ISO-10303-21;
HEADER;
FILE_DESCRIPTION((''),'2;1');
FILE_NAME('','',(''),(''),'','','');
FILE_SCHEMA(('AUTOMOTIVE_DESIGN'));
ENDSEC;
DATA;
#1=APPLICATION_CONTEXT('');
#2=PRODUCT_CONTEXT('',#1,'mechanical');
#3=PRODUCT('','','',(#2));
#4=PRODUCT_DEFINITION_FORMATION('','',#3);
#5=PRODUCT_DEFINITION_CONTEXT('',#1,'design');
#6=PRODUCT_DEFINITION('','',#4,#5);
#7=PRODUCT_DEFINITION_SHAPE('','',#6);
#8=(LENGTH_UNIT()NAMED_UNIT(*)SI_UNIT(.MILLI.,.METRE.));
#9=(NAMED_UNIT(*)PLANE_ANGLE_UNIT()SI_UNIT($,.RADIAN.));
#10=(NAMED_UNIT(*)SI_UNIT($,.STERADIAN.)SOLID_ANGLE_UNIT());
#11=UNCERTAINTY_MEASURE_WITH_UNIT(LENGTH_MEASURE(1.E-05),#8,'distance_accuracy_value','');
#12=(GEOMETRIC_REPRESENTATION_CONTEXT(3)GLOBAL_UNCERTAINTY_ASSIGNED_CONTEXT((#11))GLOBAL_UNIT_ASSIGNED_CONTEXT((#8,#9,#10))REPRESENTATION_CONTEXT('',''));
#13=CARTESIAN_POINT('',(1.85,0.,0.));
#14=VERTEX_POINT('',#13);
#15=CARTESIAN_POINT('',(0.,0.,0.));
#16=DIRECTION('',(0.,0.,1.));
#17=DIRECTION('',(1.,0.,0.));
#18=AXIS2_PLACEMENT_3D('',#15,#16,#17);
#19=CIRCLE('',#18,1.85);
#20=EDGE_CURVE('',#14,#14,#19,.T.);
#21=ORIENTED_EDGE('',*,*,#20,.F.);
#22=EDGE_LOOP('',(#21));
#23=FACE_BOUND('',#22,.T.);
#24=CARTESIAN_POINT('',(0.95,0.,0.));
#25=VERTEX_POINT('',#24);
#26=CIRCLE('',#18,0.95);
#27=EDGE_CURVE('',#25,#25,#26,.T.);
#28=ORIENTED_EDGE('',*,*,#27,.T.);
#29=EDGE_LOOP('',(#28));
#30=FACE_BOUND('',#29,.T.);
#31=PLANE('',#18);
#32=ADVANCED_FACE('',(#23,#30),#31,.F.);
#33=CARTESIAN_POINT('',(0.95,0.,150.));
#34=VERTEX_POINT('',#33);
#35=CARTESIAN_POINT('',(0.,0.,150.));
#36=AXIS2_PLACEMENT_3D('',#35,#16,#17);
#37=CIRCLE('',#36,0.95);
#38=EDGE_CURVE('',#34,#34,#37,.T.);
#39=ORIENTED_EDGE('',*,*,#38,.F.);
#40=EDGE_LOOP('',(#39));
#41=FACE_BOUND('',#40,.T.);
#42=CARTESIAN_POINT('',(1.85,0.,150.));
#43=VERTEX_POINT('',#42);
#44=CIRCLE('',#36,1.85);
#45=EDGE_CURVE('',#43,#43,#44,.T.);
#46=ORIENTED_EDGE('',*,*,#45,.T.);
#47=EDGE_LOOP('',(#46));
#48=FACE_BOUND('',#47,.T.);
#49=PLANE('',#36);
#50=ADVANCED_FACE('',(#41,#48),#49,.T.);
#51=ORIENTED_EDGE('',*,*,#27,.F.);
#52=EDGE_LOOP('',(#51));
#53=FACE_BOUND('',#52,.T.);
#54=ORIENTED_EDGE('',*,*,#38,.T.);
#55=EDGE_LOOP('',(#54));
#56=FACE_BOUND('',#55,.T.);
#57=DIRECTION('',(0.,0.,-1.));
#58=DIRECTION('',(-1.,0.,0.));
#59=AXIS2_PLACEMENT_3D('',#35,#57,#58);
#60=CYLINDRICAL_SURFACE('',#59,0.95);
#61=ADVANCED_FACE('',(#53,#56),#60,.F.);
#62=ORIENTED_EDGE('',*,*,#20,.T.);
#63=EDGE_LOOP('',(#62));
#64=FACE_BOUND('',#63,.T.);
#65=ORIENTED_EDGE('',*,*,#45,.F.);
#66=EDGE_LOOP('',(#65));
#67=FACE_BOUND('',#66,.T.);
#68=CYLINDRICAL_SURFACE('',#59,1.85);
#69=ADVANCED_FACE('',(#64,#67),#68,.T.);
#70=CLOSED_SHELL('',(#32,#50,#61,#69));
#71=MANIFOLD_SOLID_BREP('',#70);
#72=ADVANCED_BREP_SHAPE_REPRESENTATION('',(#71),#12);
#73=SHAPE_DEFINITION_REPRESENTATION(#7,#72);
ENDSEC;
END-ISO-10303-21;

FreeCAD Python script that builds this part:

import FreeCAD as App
import Part
import Sketcher
from FreeCAD import Vector
Q = App.Units.Quantity

doc = App.newDocument("Part")
params = doc.addObject("Spreadsheet::Sheet", "Params")
for row, (alias, value) in enumerate([
    ("sketch1_diameter", "3.7 mm"),
    ("sketch1_diameter2", "1.9 mm"),
    ("pad1_length", "150 mm"),
], start=1):
    params.set(f"A{row}", alias)
    params.set(f"B{row}", "=" + value)
    params.setAlias(f"B{row}", alias)

body = doc.addObject("PartDesign::Body", "Body")

sketch1 = body.newObject("Sketcher::SketchObject", "Sketch")
sketch1.AttachmentSupport = (doc.getObject("XY_Plane"), [""])
sketch1.MapMode = "FlatFace"
sketch1.addGeometry(Part.Circle(Vector(0, 0, 0), Vector(0, 0, 1), 1.85), False)
sketch1.addGeometry(Part.Circle(Vector(0, 0, 0), Vector(0, 0, 1), 0.95), False)
sketch1.addConstraint(Sketcher.Constraint("Coincident", 0, 3, -1, 1))
sketch1.addConstraint(Sketcher.Constraint("Coincident", 1, 3, -1, 1))
sketch1.addConstraint(Sketcher.Constraint("Diameter", 0, Q("3.7 mm")))
sketch1.addConstraint(Sketcher.Constraint("Diameter", 1, Q("1.9 mm")))
sketch1.setExpression("Constraints[2]", "Params.sketch1_diameter")
sketch1.setExpression("Constraints[3]", "Params.sketch1_diameter2")
pad1 = body.newObject("PartDesign::Pad", "Pad")
pad1.Profile = sketch1
pad1.setExpression("Length", "Params.pad1_length")

doc.recompute()
